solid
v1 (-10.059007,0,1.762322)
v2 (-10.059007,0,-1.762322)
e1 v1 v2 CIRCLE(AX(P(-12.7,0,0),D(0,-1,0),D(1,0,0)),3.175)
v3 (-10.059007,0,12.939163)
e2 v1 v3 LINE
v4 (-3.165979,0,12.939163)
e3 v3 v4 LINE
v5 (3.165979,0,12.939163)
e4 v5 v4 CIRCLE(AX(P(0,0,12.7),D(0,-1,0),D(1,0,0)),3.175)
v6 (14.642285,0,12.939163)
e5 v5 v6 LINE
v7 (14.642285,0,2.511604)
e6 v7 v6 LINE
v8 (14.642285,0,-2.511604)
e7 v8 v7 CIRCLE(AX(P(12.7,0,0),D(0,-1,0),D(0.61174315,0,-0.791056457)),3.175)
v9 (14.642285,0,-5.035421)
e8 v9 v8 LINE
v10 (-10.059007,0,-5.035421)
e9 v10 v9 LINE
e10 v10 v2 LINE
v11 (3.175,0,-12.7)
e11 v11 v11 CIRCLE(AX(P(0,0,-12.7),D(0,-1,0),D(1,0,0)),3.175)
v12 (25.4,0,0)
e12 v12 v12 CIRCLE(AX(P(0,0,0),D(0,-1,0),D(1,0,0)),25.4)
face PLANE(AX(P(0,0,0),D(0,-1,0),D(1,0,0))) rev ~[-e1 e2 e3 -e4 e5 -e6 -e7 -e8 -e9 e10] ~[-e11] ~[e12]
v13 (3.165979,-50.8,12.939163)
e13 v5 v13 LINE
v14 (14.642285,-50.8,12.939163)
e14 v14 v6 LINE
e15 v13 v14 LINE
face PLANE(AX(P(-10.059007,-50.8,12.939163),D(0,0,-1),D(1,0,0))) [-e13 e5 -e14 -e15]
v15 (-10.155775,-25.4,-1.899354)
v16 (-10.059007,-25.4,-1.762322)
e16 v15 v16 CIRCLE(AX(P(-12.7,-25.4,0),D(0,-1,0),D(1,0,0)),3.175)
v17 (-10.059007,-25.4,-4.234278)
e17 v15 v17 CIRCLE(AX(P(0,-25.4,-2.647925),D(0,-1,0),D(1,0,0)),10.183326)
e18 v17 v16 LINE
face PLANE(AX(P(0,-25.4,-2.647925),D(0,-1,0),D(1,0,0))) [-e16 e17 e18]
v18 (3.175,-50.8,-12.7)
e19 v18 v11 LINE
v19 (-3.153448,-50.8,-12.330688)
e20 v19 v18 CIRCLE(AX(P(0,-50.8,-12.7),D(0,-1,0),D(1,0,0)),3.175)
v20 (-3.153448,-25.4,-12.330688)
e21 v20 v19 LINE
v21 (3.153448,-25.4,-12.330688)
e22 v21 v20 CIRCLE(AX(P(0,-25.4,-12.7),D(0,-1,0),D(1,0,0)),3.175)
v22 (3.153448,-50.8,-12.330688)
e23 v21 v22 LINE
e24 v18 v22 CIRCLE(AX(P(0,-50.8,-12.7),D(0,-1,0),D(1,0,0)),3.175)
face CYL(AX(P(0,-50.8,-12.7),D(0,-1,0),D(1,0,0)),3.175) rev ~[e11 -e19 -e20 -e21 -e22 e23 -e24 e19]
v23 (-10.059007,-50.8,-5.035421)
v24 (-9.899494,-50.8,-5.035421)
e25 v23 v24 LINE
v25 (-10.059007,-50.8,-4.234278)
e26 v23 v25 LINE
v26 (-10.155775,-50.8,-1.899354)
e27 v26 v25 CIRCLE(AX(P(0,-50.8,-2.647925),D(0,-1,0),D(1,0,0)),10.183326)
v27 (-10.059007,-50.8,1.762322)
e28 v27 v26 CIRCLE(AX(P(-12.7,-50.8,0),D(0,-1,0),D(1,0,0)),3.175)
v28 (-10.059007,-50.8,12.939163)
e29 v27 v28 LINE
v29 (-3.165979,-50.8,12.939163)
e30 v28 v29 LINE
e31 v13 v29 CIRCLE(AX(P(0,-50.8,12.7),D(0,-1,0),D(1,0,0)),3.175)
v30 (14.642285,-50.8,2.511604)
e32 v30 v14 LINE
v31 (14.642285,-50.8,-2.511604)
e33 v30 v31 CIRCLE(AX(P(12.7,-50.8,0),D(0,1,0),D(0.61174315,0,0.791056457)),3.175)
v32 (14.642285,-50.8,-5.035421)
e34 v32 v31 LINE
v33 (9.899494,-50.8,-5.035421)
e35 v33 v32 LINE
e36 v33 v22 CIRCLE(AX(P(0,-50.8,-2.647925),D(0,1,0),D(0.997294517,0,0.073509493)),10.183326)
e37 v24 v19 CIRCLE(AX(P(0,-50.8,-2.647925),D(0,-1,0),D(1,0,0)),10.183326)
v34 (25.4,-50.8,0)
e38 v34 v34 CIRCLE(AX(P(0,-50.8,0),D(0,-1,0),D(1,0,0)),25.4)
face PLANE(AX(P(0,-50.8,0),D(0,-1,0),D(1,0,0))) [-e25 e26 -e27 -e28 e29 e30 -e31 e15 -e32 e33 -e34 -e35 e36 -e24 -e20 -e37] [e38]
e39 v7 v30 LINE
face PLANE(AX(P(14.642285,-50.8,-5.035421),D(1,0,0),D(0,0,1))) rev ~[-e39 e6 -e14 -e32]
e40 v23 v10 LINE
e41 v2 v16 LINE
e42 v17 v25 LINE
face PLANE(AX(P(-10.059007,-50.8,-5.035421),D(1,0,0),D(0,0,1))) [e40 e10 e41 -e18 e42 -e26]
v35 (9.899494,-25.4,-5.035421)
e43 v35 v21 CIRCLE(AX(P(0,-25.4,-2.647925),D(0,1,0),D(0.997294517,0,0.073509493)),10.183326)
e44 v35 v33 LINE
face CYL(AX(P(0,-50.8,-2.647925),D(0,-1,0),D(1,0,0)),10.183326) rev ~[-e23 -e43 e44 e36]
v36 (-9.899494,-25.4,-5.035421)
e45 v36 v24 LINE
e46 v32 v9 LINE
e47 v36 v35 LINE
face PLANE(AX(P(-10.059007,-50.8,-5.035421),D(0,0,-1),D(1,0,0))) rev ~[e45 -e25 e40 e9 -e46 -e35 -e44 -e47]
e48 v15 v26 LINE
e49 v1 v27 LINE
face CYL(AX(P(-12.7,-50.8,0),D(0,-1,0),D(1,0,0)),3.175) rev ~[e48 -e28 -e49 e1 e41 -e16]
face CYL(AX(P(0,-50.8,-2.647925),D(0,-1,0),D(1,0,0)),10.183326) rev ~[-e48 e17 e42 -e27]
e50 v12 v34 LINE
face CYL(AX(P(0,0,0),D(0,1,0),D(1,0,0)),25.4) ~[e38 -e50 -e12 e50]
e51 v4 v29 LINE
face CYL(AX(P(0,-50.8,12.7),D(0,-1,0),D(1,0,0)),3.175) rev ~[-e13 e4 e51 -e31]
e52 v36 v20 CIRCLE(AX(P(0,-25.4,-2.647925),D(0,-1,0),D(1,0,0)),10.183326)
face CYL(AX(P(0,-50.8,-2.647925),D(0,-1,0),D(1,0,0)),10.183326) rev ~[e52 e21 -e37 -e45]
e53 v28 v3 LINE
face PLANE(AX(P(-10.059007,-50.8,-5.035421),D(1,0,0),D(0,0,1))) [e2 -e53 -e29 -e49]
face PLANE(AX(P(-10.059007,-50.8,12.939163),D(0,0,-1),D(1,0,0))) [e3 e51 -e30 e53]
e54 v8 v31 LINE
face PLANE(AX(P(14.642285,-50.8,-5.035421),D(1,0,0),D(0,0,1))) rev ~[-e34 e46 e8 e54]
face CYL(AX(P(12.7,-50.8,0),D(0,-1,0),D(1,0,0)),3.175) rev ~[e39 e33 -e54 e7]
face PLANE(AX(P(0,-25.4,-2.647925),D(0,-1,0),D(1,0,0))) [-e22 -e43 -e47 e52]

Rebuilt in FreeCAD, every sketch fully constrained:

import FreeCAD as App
import Part
import Sketcher

V = App.Vector
Q = App.Units.Quantity

doc = App.newDocument("Part")
body = doc.addObject("PartDesign::Body", "Body")

# Sketch on XZ plane
sketch1 = body.newObject("Sketcher::SketchObject", "Sketch")
sketch1.AttachmentSupport = (doc.getObject("XZ_Plane"), [""])
sketch1.MapMode = "FlatFace"
sketch1.addGeometry(Part.Circle(V(0, 0, 0), V(0, 0, 1), 25.4), False)
sketch1.addConstraint([
    Sketcher.Constraint("Coincident", 0, 3, -1, 1),
    Sketcher.Constraint("Diameter", 0, Q("2 in")),
])
pad1 = body.newObject("PartDesign::Pad", "Pad")
pad1.Profile = sketch1
pad1.Length = Q("2 in")

# Sketch on XZ plane
sketch2 = body.newObject("Sketcher::SketchObject", "Sketch001")
sketch2.AttachmentSupport = (doc.getObject("XZ_Plane"), [""])
sketch2.MapMode = "FlatFace"
sketch2.AttachmentOffset = App.Placement(V(0, 0, 2 * 25.4), App.Rotation())
sketch2.addGeometry([
    Part.Circle(V(0, 12.7, 0), V(0, 0, 1), 3.175),
    Part.Circle(V(12.7, 0, 0), V(0, 0, 1), 3.175),
    Part.Circle(V(0, -12.7, 0), V(0, 0, 1), 3.175),
    Part.Circle(V(-12.7, 0, 0), V(0, 0, 1), 3.175),
], False)
sketch2.addConstraint([
    Sketcher.Constraint("Equal", 0, 1),
    Sketcher.Constraint("Equal", 1, 2),
    Sketcher.Constraint("Equal", 2, 3),
    Sketcher.Constraint("Symmetric", 0, 3, 2, 3, -1, 1),
    Sketcher.Constraint("Symmetric", 1, 3, 3, 3, -1, 1),
    Sketcher.Constraint("PointOnObject", 0, 3, -2),
    Sketcher.Constraint("PointOnObject", 1, 3, -1),
    Sketcher.Constraint("Diameter", 0, Q("0.25 in")),
    Sketcher.Constraint("DistanceY", 2, 3, 0, 3, Q("1 in")),
    Sketcher.Constraint("DistanceX", 3, 3, 1, 3, Q("1 in")),
])
pocket1 = body.newObject("PartDesign::Pocket", "Pocket")
pocket1.Profile = sketch2
pocket1.Type = "ThroughAll"

# Sketch on XZ plane
sketch3 = body.newObject("Sketcher::SketchObject", "Sketch002")
sketch3.AttachmentSupport = (doc.getObject("XZ_Plane"), [""])
sketch3.MapMode = "FlatFace"
sketch3.AttachmentOffset = App.Placement(V(0, 0, 2 * 25.4), App.Rotation())
sketch3.addGeometry(Part.Circle(V(0, -2.647925, 0), V(0, 0, 1), 10.183326), False)
sketch3.addConstraint([
    Sketcher.Constraint("PointOnObject", 0, 3, -2),
    Sketcher.Constraint("Diameter", 0, 20.366652),
    Sketcher.Constraint("DistanceY", 0, 3, -1, 1, 2.647925),
])
pocket2 = body.newObject("PartDesign::Pocket", "Pocket001")
pocket2.Profile = sketch3
pocket2.Length = Q("1 in")

# Sketch on XZ plane
sketch4 = body.newObject("Sketcher::SketchObject", "Sketch003")
sketch4.AttachmentSupport = (doc.getObject("XZ_Plane"), [""])
sketch4.MapMode = "FlatFace"
sketch4.AttachmentOffset = App.Placement(V(0, 0, 2 * 25.4), App.Rotation())
sketch4.addGeometry([
    Part.LineSegment(V(-10.059007, 12.939163, 0), V(-10.059007, -5.035421, 0)),
    Part.LineSegment(V(-10.059007, -5.035421, 0), V(14.642285, -5.035421, 0)),
    Part.LineSegment(V(14.642285, -5.035421, 0), V(14.642285, 12.939163, 0)),
    Part.LineSegment(V(14.642285, 12.939163, 0), V(-10.059007, 12.939163, 0)),
], False)
sketch4.addConstraint([
    Sketcher.Constraint("Coincident", 0, 2, 1, 1),
    Sketcher.Constraint("Coincident", 1, 2, 2, 1),
    Sketcher.Constraint("Coincident", 2, 2, 3, 1),
    Sketcher.Constraint("Coincident", 3, 2, 0, 1),
    Sketcher.Constraint("Vertical", 0),
    Sketcher.Constraint("Horizontal", 1),
    Sketcher.Constraint("Vertical", 2),
    Sketcher.Constraint("Horizontal", 3),
    Sketcher.Constraint("DistanceX", 1, 1, 1, 2, 24.701291),
    Sketcher.Constraint("DistanceY", 0, 2, 0, 1, 17.974584),
    Sketcher.Constraint("DistanceY", 0, 2, -1, 1, 5.035421),
    Sketcher.Constraint("DistanceX", 0, 2, -1, 1, 10.059007),
])
pocket3 = body.newObject("PartDesign::Pocket", "Pocket002")
pocket3.Profile = sketch4
pocket3.Length = Q("2 in")

doc.recompute()
